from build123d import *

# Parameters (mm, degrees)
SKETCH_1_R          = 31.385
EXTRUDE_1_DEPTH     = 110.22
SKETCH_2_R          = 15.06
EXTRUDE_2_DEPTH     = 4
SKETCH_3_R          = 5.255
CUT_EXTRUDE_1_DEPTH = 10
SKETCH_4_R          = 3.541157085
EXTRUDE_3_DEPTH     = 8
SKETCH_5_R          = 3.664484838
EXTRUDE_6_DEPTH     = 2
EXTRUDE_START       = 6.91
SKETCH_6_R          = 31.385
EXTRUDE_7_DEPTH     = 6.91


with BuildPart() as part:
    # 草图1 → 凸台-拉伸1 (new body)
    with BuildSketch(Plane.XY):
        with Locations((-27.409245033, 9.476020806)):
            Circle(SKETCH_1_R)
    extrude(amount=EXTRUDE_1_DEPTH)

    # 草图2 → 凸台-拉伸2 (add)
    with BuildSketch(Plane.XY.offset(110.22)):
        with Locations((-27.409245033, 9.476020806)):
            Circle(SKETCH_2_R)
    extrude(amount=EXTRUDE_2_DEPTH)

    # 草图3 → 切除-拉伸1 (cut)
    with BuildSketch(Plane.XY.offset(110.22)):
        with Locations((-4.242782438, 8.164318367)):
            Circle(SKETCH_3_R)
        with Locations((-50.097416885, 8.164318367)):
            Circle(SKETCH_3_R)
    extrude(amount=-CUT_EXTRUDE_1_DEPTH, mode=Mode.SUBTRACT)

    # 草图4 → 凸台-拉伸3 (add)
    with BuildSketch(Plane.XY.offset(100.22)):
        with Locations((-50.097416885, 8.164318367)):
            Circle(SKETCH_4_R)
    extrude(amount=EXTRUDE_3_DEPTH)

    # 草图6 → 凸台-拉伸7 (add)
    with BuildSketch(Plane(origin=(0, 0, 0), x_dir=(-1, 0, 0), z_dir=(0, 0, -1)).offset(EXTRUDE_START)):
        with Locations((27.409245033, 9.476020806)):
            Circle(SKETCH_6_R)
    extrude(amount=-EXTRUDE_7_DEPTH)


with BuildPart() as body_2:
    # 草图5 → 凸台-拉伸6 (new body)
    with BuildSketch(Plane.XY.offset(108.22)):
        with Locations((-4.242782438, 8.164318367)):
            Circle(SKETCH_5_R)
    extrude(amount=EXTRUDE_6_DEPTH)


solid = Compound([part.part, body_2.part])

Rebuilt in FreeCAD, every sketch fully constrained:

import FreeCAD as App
import Part
import Sketcher
from FreeCAD import Vector
Q = App.Units.Quantity

doc = App.newDocument("Part")
body = doc.addObject("PartDesign::Body", "Body")

sketch1 = body.newObject("Sketcher::SketchObject", "Sketch")
sketch1.AttachmentSupport = (doc.getObject("XY_Plane"), [""])
sketch1.MapMode = "FlatFace"
sketch1.addGeometry(Part.Circle(Vector(-27, 9, 0), Vector(0, 0, 1), 31), False)
sketch1.addConstraint([
    Sketcher.Constraint("Diameter", 0, Q("62.77 mm")),
    Sketcher.Constraint("DistanceY", -1, 1, 0, 3, Q("9.476021 mm")),
    Sketcher.Constraint("DistanceX", 0, 3, -1, 1, Q("27.409245 mm")),
])
pad1 = body.newObject("PartDesign::Pad", "Pad")
pad1.Profile = sketch1
pad1.Length = 110.22

sketch2 = body.newObject("Sketcher::SketchObject", "Sketch001")
sketch2.AttachmentSupport = (doc.getObject("XY_Plane"), [""])
sketch2.MapMode = "FlatFace"
sketch2.AttachmentOffset = App.Placement(Vector(0, 0, 110.22), App.Rotation())
sketch2.addGeometry(Part.Circle(Vector(-27, 9, 0), Vector(0, 0, 1), 15), False)
sketch2.addConstraint([
    Sketcher.Constraint("Diameter", 0, Q("30.12 mm")),
    Sketcher.Constraint("DistanceY", -1, 1, 0, 3, Q("9.476021 mm")),
    Sketcher.Constraint("DistanceX", 0, 3, -1, 1, Q("27.409245 mm")),
])
pad2 = body.newObject("PartDesign::Pad", "Pad001")
pad2.Profile = sketch2
pad2.Length = 4

sketch3 = body.newObject("Sketcher::SketchObject", "Sketch002")
sketch3.AttachmentSupport = (doc.getObject("XY_Plane"), [""])
sketch3.MapMode = "FlatFace"
sketch3.AttachmentOffset = App.Placement(Vector(0, 0, 110.22), App.Rotation())
sketch3.addGeometry([
    Part.Circle(Vector(-4, 8, 0), Vector(0, 0, 1), 5),
    Part.Circle(Vector(-50, 8, 0), Vector(0, 0, 1), 5),
], False)
sketch3.addConstraint([
    Sketcher.Constraint("Equal", 0, 1),
    Sketcher.Constraint("Horizontal", 0, 3, 1, 3),
    Sketcher.Constraint("Diameter", 0, Q("10.51 mm")),
    Sketcher.Constraint("DistanceY", -1, 1, 0, 3, Q("8.164318 mm")),
    Sketcher.Constraint("DistanceX", 0, 3, -1, 1, Q("4.242782 mm")),
    Sketcher.Constraint("DistanceX", 1, 3, -1, 1, Q("50.097417 mm")),
])
pocket1 = body.newObject("PartDesign::Pocket", "Pocket")
pocket1.Profile = sketch3
pocket1.Length = 10

sketch4 = body.newObject("Sketcher::SketchObject", "Sketch003")
sketch4.AttachmentSupport = (doc.getObject("XY_Plane"), [""])
sketch4.MapMode = "FlatFace"
sketch4.AttachmentOffset = App.Placement(Vector(0, 0, 100.22), App.Rotation())
sketch4.addGeometry(Part.Circle(Vector(-50.1, 8.2, 0), Vector(0, 0, 1), 3.5), False)
sketch4.addConstraint([
    Sketcher.Constraint("Diameter", 0, Q("7.082314 mm")),
    Sketcher.Constraint("DistanceY", -1, 1, 0, 3, Q("8.164318 mm")),
    Sketcher.Constraint("DistanceX", 0, 3, -1, 1, Q("50.097417 mm")),
])
pad3 = body.newObject("PartDesign::Pad", "Pad002")
pad3.Profile = sketch4
pad3.Length = 8

sketch5 = body.newObject("Sketcher::SketchObject", "Sketch004")
sketch5.AttachmentSupport = (doc.getObject("XY_Plane"), [""])
sketch5.MapMode = "FlatFace"
sketch5.AttachmentOffset = App.Placement(Vector(0, 0, -6.91), App.Rotation())
sketch5.addGeometry(Part.Circle(Vector(-27, 9, 0), Vector(0, 0, 1), 31), False)
sketch5.addConstraint([
    Sketcher.Constraint("Diameter", 0, Q("62.77 mm")),
    Sketcher.Constraint("DistanceY", -1, 1, 0, 3, Q("9.476021 mm")),
    Sketcher.Constraint("DistanceX", 0, 3, -1, 1, Q("27.409245 mm")),
])
pad4 = body.newObject("PartDesign::Pad", "Pad003")
pad4.Profile = sketch5
pad4.Length = 6.91
body2 = doc.addObject("PartDesign::Body", "Body001")

sketch6 = body2.newObject("Sketcher::SketchObject", "Sketch005")
sketch6.AttachmentSupport = (doc.getObject("XY_Plane001"), [""])
sketch6.MapMode = "FlatFace"
sketch6.AttachmentOffset = App.Placement(Vector(0, 0, 108.22), App.Rotation())
sketch6.addGeometry(Part.Circle(Vector(-4.2, 8.2, 0), Vector(0, 0, 1), 3.7), False)
sketch6.addConstraint([
    Sketcher.Constraint("Diameter", 0, Q("7.32897 mm")),
    Sketcher.Constraint("DistanceY", -1, 1, 0, 3, Q("8.164318 mm")),
    Sketcher.Constraint("DistanceX", 0, 3, -1, 1, Q("4.242782 mm")),
])
pad5 = body2.newObject("PartDesign::Pad", "Pad004")
pad5.Profile = sketch6
pad5.Length = 2

doc.recompute()
